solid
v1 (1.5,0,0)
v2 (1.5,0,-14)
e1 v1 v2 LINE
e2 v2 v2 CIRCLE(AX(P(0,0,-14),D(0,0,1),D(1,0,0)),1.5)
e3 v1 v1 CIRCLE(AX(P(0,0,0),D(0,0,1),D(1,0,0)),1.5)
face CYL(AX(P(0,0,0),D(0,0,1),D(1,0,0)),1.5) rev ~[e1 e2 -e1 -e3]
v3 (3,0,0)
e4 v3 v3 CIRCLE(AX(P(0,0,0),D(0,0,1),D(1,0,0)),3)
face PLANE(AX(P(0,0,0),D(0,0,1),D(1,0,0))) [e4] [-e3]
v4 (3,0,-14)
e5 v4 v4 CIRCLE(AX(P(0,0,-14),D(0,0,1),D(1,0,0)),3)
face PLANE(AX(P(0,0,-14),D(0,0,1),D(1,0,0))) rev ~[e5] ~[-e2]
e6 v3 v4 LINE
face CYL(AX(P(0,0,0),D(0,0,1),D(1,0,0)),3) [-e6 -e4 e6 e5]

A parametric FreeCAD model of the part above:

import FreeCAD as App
import Part
import Sketcher
from FreeCAD import Vector

doc = App.newDocument("Part")
body = doc.addObject("PartDesign::Body", "Body")

sketch1 = body.newObject("Sketcher::SketchObject", "Sketch")
sketch1.AttachmentSupport = (doc.getObject("XY_Plane"), [""])
sketch1.MapMode = "FlatFace"
sketch1.addGeometry(Part.Circle(Vector(0, 0, 0), Vector(0, 0, 1), 3), False)
sketch1.addGeometry(Part.Circle(Vector(0, 0, 0), Vector(0, 0, 1), 1.5), False)
sketch1.addConstraint(Sketcher.Constraint("Coincident", 0, 3, -1, 1))
sketch1.addConstraint(Sketcher.Constraint("Coincident", 1, 3, -1, 1))
sketch1.addConstraint(Sketcher.Constraint("Diameter", 0, 6.0))
sketch1.addConstraint(Sketcher.Constraint("Diameter", 1, 3.0))
pad1 = body.newObject("PartDesign::Pad", "Pad")
pad1.Profile = sketch1
pad1.Length = 14
pad1.Reversed = True

doc.recompute()
